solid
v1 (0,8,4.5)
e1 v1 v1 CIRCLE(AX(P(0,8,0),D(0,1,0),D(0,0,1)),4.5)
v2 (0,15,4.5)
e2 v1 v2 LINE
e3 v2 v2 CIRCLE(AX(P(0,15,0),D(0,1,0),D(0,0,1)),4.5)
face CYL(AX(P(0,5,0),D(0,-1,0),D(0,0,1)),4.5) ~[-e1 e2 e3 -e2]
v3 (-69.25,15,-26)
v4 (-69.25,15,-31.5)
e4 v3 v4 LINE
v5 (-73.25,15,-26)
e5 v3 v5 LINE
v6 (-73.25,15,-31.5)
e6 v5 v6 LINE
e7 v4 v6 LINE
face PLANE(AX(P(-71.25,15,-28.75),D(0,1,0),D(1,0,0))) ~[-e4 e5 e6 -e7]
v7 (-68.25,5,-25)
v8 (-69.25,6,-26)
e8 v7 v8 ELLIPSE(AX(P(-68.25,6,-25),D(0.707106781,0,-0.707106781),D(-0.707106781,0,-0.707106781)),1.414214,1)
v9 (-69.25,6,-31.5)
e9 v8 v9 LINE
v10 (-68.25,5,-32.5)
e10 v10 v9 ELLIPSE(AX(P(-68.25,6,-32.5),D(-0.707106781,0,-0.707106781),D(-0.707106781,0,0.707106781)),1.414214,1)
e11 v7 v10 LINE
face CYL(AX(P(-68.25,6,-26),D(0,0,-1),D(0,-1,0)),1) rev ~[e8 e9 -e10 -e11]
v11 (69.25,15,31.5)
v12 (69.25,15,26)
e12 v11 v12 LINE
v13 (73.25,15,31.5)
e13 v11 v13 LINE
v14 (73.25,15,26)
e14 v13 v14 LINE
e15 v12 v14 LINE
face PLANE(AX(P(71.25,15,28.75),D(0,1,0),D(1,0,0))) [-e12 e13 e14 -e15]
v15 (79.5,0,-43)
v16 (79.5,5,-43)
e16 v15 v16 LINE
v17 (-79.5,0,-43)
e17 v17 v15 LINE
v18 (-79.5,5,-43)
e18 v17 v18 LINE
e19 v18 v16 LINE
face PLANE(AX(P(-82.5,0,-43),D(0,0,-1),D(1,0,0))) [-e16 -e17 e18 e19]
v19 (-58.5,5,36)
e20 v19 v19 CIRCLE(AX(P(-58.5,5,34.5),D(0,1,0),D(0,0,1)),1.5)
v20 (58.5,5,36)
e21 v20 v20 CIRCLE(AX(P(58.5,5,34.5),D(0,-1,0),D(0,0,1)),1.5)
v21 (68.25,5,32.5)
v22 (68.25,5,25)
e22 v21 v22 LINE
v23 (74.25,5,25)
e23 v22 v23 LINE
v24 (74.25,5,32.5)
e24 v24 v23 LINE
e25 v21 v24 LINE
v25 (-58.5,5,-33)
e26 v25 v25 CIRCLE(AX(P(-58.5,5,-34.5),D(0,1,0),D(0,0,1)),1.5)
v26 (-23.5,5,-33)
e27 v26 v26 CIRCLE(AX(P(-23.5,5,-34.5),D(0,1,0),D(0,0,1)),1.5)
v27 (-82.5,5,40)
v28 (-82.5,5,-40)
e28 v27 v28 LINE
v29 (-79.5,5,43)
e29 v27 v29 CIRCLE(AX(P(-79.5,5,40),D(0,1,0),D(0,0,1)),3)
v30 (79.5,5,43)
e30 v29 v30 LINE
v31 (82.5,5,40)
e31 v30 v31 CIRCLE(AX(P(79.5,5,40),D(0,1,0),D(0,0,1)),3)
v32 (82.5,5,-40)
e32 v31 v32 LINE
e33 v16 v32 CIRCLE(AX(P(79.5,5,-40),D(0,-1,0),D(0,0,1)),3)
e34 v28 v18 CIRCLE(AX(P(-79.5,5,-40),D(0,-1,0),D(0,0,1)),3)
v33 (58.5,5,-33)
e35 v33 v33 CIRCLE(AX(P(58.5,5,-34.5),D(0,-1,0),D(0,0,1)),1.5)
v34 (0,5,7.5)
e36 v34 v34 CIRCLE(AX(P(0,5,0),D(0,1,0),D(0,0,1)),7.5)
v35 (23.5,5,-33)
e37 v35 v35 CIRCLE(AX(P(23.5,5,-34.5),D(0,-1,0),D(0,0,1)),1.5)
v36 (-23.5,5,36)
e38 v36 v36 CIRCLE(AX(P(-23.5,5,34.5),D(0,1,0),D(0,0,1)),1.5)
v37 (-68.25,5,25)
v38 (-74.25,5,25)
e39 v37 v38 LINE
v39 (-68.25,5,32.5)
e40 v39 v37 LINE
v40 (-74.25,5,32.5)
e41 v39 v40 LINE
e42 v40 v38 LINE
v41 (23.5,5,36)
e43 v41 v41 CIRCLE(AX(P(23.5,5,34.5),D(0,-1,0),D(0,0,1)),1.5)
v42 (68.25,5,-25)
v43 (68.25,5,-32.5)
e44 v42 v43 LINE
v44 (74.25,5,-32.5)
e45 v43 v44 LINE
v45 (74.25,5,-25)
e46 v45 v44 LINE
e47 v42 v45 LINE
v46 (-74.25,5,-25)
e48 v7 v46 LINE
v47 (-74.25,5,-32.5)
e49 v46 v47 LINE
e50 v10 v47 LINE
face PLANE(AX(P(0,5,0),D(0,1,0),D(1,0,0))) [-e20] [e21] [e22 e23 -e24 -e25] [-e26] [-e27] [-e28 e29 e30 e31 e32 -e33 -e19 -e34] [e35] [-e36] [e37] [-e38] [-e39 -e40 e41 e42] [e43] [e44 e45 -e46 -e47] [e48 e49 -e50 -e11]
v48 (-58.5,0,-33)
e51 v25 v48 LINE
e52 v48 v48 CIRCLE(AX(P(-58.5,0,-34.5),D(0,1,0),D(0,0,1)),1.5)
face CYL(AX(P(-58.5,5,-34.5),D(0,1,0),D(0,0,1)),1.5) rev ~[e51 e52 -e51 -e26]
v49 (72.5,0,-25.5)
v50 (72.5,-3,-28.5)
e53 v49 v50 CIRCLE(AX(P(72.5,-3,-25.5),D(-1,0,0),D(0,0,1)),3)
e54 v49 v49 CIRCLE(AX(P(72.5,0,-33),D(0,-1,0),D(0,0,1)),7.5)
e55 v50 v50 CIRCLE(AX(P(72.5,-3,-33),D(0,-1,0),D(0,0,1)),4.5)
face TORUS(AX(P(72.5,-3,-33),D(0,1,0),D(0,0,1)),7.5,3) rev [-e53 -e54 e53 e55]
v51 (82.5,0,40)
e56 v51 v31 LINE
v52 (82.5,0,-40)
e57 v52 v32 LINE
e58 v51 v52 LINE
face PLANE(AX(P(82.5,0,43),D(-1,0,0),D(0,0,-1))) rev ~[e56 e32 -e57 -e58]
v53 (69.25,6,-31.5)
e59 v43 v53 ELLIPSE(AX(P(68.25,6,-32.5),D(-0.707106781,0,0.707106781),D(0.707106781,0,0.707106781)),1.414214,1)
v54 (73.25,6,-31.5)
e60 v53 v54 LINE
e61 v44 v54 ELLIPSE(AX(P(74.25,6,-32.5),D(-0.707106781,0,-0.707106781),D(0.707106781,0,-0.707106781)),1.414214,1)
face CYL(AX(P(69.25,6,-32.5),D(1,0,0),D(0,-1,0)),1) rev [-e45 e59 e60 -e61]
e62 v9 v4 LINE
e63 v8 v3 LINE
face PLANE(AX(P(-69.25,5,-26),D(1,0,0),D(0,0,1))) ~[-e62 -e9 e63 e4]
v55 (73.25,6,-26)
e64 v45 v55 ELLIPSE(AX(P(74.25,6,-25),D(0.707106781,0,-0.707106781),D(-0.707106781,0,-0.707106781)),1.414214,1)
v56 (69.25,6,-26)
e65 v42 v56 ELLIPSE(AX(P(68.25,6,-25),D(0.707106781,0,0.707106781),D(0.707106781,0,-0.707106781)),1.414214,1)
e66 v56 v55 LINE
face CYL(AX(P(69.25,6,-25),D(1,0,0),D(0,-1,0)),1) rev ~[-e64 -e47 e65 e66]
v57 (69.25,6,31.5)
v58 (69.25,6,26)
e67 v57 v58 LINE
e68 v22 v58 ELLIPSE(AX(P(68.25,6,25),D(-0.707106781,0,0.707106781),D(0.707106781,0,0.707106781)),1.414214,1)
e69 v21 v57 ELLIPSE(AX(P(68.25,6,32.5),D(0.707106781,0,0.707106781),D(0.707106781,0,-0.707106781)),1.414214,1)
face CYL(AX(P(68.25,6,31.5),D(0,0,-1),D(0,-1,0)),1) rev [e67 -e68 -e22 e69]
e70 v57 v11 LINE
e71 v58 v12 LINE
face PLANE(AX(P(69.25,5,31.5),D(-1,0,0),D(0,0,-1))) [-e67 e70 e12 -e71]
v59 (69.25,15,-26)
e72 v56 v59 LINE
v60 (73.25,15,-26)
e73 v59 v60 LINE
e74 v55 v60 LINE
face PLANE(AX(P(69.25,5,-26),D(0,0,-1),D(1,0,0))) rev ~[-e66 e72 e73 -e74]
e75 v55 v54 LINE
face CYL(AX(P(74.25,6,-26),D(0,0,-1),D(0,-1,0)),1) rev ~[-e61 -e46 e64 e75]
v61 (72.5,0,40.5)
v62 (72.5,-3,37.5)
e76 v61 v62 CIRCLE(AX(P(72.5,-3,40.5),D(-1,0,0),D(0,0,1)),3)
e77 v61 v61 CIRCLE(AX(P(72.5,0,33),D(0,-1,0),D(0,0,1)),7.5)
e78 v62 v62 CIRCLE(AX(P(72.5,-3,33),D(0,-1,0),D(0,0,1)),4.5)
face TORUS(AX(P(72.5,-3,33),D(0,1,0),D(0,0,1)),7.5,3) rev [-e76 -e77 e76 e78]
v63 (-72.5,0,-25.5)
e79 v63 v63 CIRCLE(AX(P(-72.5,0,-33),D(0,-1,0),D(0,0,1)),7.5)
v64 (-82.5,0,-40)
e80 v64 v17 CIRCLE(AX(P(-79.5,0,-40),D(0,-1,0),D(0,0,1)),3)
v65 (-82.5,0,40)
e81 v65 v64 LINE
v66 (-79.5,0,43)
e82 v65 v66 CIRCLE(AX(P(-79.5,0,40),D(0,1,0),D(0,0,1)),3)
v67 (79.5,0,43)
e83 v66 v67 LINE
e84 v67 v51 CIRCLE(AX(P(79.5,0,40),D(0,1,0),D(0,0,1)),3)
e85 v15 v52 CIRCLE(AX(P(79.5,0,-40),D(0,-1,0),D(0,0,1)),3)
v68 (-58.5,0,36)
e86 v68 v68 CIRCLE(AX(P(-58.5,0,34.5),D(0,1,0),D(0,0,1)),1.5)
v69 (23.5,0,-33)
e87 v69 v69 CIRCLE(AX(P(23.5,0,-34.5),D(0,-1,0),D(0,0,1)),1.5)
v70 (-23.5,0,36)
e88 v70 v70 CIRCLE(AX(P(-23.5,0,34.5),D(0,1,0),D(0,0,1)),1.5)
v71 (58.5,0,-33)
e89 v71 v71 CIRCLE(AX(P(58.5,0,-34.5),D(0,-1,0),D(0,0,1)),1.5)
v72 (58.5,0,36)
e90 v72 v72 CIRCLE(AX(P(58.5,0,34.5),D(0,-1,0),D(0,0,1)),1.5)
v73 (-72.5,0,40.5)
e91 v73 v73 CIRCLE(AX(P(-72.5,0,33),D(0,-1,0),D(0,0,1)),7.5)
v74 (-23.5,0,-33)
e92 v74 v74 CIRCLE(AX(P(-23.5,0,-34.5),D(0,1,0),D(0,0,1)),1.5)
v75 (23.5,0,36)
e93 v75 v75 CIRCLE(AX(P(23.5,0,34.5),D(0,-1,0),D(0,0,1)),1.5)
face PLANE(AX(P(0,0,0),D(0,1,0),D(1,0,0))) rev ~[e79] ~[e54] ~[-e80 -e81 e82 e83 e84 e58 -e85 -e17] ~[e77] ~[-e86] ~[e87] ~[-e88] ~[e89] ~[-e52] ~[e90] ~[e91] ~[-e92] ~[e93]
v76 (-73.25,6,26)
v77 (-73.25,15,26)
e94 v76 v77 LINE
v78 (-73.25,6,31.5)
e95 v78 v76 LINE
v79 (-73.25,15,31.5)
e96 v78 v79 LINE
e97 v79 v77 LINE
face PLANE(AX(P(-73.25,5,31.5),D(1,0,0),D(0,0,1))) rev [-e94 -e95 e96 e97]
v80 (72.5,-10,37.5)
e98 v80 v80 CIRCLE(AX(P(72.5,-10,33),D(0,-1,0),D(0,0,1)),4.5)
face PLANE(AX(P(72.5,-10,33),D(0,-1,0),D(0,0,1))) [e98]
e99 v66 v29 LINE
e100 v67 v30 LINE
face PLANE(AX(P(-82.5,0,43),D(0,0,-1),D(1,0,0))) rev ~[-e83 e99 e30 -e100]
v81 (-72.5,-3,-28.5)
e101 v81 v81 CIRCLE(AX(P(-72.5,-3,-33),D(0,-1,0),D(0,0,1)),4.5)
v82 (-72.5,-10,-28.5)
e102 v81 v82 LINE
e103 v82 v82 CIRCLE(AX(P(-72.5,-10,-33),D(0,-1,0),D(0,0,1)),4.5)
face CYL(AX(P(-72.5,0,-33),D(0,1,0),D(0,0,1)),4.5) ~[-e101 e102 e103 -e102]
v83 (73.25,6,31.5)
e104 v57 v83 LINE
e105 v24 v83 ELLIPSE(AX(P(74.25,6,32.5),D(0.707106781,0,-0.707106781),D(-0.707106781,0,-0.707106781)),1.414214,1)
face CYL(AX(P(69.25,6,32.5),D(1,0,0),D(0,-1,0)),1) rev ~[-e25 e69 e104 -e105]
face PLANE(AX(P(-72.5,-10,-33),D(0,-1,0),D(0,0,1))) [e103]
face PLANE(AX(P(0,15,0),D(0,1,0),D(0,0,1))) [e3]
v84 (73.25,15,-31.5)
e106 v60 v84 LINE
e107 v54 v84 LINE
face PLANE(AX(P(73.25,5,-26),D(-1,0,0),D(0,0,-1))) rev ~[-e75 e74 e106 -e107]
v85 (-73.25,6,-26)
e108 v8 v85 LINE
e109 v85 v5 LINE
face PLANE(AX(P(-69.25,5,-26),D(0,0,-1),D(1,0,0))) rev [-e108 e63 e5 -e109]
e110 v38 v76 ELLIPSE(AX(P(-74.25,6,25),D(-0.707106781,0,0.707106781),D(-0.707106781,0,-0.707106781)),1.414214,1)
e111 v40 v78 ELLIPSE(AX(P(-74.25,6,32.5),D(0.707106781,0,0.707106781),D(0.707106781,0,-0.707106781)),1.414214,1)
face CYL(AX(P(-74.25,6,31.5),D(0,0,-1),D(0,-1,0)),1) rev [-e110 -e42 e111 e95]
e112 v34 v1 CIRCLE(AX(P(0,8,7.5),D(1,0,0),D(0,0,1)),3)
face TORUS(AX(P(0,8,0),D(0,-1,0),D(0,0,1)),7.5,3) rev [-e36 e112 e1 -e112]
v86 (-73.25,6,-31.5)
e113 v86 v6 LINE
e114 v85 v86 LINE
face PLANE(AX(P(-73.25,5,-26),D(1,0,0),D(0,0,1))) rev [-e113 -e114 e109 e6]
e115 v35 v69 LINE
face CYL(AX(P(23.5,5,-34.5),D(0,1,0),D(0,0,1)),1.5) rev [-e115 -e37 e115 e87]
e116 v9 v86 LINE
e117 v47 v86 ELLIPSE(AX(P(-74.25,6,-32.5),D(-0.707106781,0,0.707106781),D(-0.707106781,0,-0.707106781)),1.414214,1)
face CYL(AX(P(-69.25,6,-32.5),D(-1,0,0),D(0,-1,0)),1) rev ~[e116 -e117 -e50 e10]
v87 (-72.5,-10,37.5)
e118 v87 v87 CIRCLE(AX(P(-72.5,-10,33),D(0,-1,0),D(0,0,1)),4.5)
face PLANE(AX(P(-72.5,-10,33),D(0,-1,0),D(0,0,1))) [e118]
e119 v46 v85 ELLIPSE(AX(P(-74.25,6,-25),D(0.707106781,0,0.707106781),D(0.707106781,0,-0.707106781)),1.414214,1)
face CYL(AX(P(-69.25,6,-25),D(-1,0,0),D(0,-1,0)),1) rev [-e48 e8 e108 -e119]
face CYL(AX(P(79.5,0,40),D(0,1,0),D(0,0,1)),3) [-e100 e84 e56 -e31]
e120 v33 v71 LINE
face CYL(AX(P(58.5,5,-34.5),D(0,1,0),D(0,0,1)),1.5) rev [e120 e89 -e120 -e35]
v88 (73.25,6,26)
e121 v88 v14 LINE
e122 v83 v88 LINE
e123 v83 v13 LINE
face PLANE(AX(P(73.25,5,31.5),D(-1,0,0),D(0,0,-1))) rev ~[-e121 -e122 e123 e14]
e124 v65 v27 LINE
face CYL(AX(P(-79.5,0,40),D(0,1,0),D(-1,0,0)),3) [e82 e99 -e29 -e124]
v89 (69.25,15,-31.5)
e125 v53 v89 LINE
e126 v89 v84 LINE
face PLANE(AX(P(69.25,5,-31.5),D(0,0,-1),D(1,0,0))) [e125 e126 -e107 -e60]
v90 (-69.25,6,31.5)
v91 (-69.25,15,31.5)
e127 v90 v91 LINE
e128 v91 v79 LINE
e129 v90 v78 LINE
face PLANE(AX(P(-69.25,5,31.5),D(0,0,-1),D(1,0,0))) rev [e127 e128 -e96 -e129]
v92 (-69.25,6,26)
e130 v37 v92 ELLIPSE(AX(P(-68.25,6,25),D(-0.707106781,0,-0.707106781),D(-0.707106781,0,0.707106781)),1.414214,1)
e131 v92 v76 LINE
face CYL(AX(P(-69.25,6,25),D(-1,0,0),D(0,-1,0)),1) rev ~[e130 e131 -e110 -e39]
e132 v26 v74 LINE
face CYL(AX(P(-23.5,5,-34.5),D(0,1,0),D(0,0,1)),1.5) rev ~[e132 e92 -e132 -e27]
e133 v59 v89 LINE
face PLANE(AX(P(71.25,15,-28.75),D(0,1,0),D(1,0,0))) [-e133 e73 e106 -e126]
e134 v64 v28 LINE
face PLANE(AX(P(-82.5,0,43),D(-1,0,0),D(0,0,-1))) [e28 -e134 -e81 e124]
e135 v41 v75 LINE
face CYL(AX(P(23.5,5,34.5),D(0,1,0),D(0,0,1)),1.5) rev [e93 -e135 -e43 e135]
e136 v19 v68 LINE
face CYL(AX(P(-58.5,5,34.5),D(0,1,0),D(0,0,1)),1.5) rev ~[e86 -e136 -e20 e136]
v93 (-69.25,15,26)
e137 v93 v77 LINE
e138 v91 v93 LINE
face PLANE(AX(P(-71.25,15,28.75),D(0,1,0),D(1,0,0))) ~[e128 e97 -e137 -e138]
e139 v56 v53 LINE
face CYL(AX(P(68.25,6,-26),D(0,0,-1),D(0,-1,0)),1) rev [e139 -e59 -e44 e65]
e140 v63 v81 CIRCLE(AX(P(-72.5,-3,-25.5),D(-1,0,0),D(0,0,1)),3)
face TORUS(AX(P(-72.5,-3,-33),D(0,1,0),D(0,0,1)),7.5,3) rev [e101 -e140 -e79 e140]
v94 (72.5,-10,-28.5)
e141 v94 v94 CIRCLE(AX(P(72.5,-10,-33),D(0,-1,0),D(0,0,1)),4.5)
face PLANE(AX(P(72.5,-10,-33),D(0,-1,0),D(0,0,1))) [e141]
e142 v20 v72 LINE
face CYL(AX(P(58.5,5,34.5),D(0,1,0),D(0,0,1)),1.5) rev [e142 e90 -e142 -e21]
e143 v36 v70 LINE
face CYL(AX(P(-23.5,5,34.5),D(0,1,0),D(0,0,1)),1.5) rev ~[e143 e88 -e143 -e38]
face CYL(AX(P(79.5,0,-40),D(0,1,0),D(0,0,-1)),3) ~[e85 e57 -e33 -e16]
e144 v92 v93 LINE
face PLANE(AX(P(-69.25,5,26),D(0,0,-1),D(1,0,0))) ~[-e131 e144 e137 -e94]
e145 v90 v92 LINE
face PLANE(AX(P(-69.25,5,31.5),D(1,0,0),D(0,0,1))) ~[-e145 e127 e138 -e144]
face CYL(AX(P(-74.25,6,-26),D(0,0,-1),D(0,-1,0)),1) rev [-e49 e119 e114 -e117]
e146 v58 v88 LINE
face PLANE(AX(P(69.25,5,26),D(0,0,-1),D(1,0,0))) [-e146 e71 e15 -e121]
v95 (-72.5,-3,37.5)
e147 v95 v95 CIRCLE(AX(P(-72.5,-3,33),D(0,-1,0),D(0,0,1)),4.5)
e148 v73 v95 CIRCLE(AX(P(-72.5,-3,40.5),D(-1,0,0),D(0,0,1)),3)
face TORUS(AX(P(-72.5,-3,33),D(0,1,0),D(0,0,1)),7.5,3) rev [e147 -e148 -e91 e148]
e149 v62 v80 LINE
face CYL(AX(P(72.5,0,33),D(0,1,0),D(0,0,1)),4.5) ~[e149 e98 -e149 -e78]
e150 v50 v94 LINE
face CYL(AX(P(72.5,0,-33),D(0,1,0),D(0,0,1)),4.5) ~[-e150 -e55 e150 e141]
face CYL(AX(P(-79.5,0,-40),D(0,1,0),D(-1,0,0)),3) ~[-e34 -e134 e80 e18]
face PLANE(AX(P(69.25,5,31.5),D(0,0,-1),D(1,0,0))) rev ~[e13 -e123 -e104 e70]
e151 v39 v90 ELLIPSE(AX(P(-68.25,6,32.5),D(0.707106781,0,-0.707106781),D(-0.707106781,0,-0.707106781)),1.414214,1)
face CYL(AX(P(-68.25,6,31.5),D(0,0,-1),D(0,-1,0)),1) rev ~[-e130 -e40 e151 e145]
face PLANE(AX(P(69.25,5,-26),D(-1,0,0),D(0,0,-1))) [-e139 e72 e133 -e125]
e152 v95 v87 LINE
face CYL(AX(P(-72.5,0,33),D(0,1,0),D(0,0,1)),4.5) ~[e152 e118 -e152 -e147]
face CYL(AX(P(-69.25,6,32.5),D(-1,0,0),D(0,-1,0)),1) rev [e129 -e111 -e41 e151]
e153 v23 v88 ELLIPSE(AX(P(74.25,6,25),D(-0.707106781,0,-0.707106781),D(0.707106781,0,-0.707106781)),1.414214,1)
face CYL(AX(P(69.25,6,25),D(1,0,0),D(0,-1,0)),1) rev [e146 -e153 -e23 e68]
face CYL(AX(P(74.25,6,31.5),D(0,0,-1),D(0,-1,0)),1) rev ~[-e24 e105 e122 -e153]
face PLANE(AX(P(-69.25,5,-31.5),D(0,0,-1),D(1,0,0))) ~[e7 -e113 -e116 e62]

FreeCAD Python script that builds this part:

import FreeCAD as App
import Part
import Sketcher
Q = App.Units.Quantity


def edges_at(feature, points):
    """Names of the edges that pass closest to the given points."""
    edges = feature.Shape.Edges
    near = lambda p: min(range(len(edges)), key=lambda i: edges[i].distToShape(Part.Vertex(*p))[0])
    return sorted({f"Edge{near(p) + 1}" for p in points})

doc = App.newDocument("Part")
body = doc.addObject("PartDesign::Body", "Body")

# Sketch on XZ plane
sketch1 = body.newObject("Sketcher::SketchObject", "Sketch")
sketch1.AttachmentSupport = (doc.getObject("XZ_Plane"), [""])
sketch1.MapMode = "FlatFace"
sketch1.addGeometry([
    Part.LineSegment(App.Vector(-82.5, -43, 0), App.Vector(-82.5, 43, 0)),
    Part.LineSegment(App.Vector(-82.5, 43, 0), App.Vector(82.5, 43, 0)),
    Part.LineSegment(App.Vector(82.5, 43, 0), App.Vector(82.5, -43, 0)),
    Part.LineSegment(App.Vector(82.5, -43, 0), App.Vector(-82.5, -43, 0)),
], False)
sketch1.addConstraint([
    Sketcher.Constraint("Coincident", 0, 2, 1, 1),
    Sketcher.Constraint("Coincident", 1, 2, 2, 1),
    Sketcher.Constraint("Coincident", 2, 2, 3, 1),
    Sketcher.Constraint("Coincident", 3, 2, 0, 1),
    Sketcher.Constraint("Vertical", 0),
    Sketcher.Constraint("Horizontal", 1),
    Sketcher.Constraint("Vertical", 2),
    Sketcher.Constraint("Horizontal", 3),
    Sketcher.Constraint("Symmetric", 0, 2, 2, 2, -1, 1),
    Sketcher.Constraint("DistanceX", 1, 1, 1, 2, Q("165 mm")),
    Sketcher.Constraint("DistanceY", 0, 1, 0, 2, Q("86 mm")),
])
pad1 = body.newObject("PartDesign::Pad", "Pad")
pad1.Profile = sketch1
pad1.Length = 5
pad1.Reversed = True

# Sketch on XZ plane
sketch2 = body.newObject("Sketcher::SketchObject", "Sketch001")
sketch2.AttachmentSupport = (doc.getObject("XZ_Plane"), [""])
sketch2.MapMode = "FlatFace"
sketch2.addGeometry([
    Part.Circle(App.Vector(-72.5, 33, 0), App.Vector(0, 0, 1), 4.5),
    Part.Circle(App.Vector(72.5, 33, 0), App.Vector(0, 0, 1), 4.5),
    Part.Circle(App.Vector(-72.5, -33, 0), App.Vector(0, 0, 1), 4.5),
    Part.Circle(App.Vector(72.5, -33, 0), App.Vector(0, 0, 1), 4.5),
], False)
sketch2.addConstraint([
    Sketcher.Constraint("Equal", 0, 1),
    Sketcher.Constraint("Equal", 1, 2),
    Sketcher.Constraint("Equal", 2, 3),
    Sketcher.Constraint("Symmetric", 1, 3, 2, 3, -1, 1),
    Sketcher.Constraint("Symmetric", 0, 3, 3, 3, -1, 1),
    Sketcher.Constraint("Symmetric", 0, 3, 1, 3, -2),
    Sketcher.Constraint("Diameter", 0, Q("9 mm")),
    Sketcher.Constraint("DistanceY", -1, 1, 0, 3, Q("33 mm")),
    Sketcher.Constraint("DistanceX", 0, 3, 1, 3, Q("145 mm")),
])
pad2 = body.newObject("PartDesign::Pad", "Pad001")
pad2.Profile = sketch2
pad2.Length = 10
doc.recompute()

fillet = body.newObject("PartDesign::Fillet", "Fillet")
fillet.Base = (pad2, edges_at(pad2, [
    (-72.5, 0, 28.5),
    (72.5, 0, 28.5),
    (72.5, 0, -37.5),
    (-72.5, 0, -37.5),
]))
fillet.Radius = 3

# Sketch on XZ plane
sketch3 = body.newObject("Sketcher::SketchObject", "Sketch002")
sketch3.AttachmentSupport = (doc.getObject("XZ_Plane"), [""])
sketch3.MapMode = "FlatFace"
sketch3.AttachmentOffset = App.Placement(App.Vector(0, 0, -5), App.Rotation())
sketch3.addGeometry([
    Part.LineSegment(App.Vector(69.25, 26, 0), App.Vector(69.25, 31.5, 0)),  # 0
    Part.LineSegment(App.Vector(69.25, 31.5, 0), App.Vector(73.25, 31.5, 0)),  # 1
    Part.LineSegment(App.Vector(73.25, 31.5, 0), App.Vector(73.25, 26, 0)),  # 2
    Part.LineSegment(App.Vector(73.25, 26, 0), App.Vector(69.25, 26, 0)),  # 3
    Part.LineSegment(App.Vector(69.25, -31.5, 0), App.Vector(69.25, -26, 0)),  # 4
    Part.LineSegment(App.Vector(69.25, -26, 0), App.Vector(73.25, -26, 0)),  # 5
    Part.LineSegment(App.Vector(73.25, -26, 0), App.Vector(73.25, -31.5, 0)),  # 6
    Part.LineSegment(App.Vector(73.25, -31.5, 0), App.Vector(69.25, -31.5, 0)),  # 7
    Part.Circle(App.Vector(0, 0, 0), App.Vector(0, 0, 1), 4.5),  # 8
], False)
sketch3.addConstraint([
    Sketcher.Constraint("Coincident", 0, 2, 1, 1),
    Sketcher.Constraint("Coincident", 1, 2, 2, 1),
    Sketcher.Constraint("Coincident", 2, 2, 3, 1),
    Sketcher.Constraint("Coincident", 3, 2, 0, 1),
    Sketcher.Constraint("Coincident", 4, 2, 5, 1),
    Sketcher.Constraint("Coincident", 5, 2, 6, 1),
    Sketcher.Constraint("Coincident", 6, 2, 7, 1),
    Sketcher.Constraint("Coincident", 7, 2, 4, 1),
    Sketcher.Constraint("Vertical", 0),
    Sketcher.Constraint("Horizontal", 1),
    Sketcher.Constraint("Vertical", 2),
    Sketcher.Constraint("Horizontal", 3),
    Sketcher.Constraint("Vertical", 4),
    Sketcher.Constraint("Horizontal", 5),
    Sketcher.Constraint("Vertical", 6),
    Sketcher.Constraint("Horizontal", 7),
    Sketcher.Constraint("Coincident", 8, 3, -1, 1),
    Sketcher.Constraint("Symmetric", 3, 2, 4, 2, -1),
    Sketcher.Constraint("Symmetric", 1, 2, 6, 2, -1),
    Sketcher.Constraint("Diameter", 8, Q("9 mm")),
    Sketcher.Constraint("DistanceX", 1, 1, 1, 2, Q("4 mm")),
    Sketcher.Constraint("DistanceY", 0, 1, 0, 2, Q("5.5 mm")),
    Sketcher.Constraint("DistanceY", -1, 1, 2, 2, Q("26 mm")),
    Sketcher.Constraint("DistanceX", -1, 1, 0, 2, Q("69.25 mm")),
])
pad3 = body.newObject("PartDesign::Pad", "Pad002")
pad3.Profile = sketch3
pad3.Length = 10
pad3.Reversed = True
doc.recompute()

fillet2 = body.newObject("PartDesign::Fillet", "Fillet001")
fillet2.Base = (pad3, edges_at(pad3, [(0, 5, -4.5)]))
fillet2.Radius = 3
doc.recompute()

fillet3 = body.newObject("PartDesign::Fillet", "Fillet002")
fillet3.Base = (fillet2, edges_at(fillet2, [
    (73.25, 5, 28.75),
    (71.25, 5, 26),
    (69.25, 5, 28.75),
    (71.25, 5, 31.5),
    (73.25, 5, -28.75),
    (71.25, 5, -31.5),
    (69.25, 5, -28.75),
    (71.25, 5, -26),
]))
fillet3.Radius = 1
doc.recompute()

mirrored = body.newObject("PartDesign::Mirrored", "Mirrored")
mirrored.Originals = [pad3]
mirrored.MirrorPlane = (doc.getObject("YZ_Plane"), [""])
body.Tip = mirrored
doc.recompute()

fillet4 = body.newObject("PartDesign::Fillet", "Fillet003")
fillet4.Base = (mirrored, edges_at(mirrored, [
    (-73.25, 5, 28.75),
    (-71.25, 5, 26),
    (-69.25, 5, 28.75),
    (-71.25, 5, 31.5),
    (-73.25, 5, -28.75),
    (-71.25, 5, -31.5),
    (-69.25, 5, -28.75),
    (-71.25, 5, -26),
]))
fillet4.Radius = 1
doc.recompute()

fillet5 = body.newObject("PartDesign::Fillet", "Fillet004")
fillet5.Base = (fillet4, edges_at(fillet4, [
    (82.5, 2.5, 43),
    (-82.5, 2.5, 43),
    (-82.5, 2.5, -43),
    (82.5, 2.5, -43),
]))
fillet5.Radius = 3

# Sketch on XZ plane
sketch4 = body.newObject("Sketcher::SketchObject", "Sketch003")
sketch4.AttachmentSupport = (doc.getObject("XZ_Plane"), [""])
sketch4.MapMode = "FlatFace"
sketch4.AttachmentOffset = App.Placement(App.Vector(0, 0, -5), App.Rotation())
sketch4.addGeometry([
    Part.Circle(App.Vector(-23.5, 34.5, 0), App.Vector(0, 0, 1), 1.5),
    Part.Circle(App.Vector(-58.5, 34.5, 0), App.Vector(0, 0, 1), 1.5),
    Part.Circle(App.Vector(-58.5, -34.5, 0), App.Vector(0, 0, 1), 1.5),
    Part.Circle(App.Vector(-23.5, -34.5, 0), App.Vector(0, 0, 1), 1.5),
], False)
sketch4.addConstraint([
    Sketcher.Constraint("Equal", 0, 1),
    Sketcher.Constraint("Equal", 1, 2),
    Sketcher.Constraint("Equal", 2, 3),
    Sketcher.Constraint("Symmetric", 1, 3, 2, 3, -1),
    Sketcher.Constraint("Symmetric", 0, 3, 3, 3, -1),
    Sketcher.Constraint("Horizontal", 0, 3, 1, 3),
    Sketcher.Constraint("Diameter", 0, Q("3 mm")),
    Sketcher.Constraint("DistanceX", 1, 3, 0, 3, Q("35 mm")),
    Sketcher.Constraint("DistanceY", 2, 3, 1, 3, Q("69 mm")),
    Sketcher.Constraint("DistanceX", 0, 3, -1, 1, Q("23.5 mm")),
])
pocket1 = body.newObject("PartDesign::Pocket", "Pocket")
pocket1.Profile = sketch4
pocket1.Length = 5
pocket1.Reversed = True
doc.recompute()

mirrored2 = body.newObject("PartDesign::Mirrored", "Mirrored001")
mirrored2.Originals = [pocket1]
mirrored2.MirrorPlane = (doc.getObject("YZ_Plane"), [""])
body.Tip = mirrored2

doc.recompute()
